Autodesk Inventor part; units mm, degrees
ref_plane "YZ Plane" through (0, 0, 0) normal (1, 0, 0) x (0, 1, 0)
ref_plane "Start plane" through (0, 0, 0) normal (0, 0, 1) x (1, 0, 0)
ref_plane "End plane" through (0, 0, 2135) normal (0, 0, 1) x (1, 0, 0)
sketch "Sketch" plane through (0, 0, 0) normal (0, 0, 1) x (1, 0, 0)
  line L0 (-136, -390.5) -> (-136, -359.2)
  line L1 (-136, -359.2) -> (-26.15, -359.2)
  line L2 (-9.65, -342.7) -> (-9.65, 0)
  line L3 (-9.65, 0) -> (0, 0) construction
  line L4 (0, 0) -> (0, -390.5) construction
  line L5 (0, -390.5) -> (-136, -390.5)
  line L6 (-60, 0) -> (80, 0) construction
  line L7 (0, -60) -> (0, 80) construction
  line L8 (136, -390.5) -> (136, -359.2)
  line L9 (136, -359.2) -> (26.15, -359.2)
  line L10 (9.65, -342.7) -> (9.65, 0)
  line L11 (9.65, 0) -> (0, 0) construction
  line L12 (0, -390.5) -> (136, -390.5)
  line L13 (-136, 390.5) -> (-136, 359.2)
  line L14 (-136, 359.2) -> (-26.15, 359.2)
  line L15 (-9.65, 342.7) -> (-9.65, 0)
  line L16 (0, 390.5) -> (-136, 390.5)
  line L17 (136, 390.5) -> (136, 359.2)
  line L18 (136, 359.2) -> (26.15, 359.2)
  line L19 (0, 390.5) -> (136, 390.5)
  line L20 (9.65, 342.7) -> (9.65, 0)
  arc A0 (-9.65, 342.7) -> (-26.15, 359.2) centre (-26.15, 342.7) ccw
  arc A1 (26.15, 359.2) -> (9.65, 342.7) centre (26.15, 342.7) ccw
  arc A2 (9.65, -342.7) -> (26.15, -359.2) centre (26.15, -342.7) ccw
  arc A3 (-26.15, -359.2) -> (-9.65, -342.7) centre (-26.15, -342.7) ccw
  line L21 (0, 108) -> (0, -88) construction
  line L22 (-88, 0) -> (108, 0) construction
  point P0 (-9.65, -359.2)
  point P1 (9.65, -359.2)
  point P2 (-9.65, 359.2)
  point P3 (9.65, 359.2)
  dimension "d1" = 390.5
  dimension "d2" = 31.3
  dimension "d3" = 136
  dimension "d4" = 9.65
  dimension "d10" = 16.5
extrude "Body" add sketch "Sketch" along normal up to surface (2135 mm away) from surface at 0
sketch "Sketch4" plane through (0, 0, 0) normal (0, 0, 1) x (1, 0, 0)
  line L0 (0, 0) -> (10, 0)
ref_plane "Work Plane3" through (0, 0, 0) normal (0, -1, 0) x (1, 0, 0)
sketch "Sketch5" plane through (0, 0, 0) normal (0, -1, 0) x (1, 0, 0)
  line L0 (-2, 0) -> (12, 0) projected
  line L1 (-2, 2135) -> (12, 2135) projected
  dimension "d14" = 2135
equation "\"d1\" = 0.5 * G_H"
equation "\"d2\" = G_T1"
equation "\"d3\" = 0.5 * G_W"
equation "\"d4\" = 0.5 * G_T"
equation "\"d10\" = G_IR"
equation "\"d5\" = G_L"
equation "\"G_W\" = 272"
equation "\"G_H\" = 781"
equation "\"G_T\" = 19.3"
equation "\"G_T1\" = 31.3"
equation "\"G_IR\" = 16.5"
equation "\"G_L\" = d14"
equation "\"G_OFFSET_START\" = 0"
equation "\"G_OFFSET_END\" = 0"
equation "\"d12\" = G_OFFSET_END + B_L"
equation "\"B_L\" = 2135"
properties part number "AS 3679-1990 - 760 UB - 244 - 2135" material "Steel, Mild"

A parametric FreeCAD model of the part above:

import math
import FreeCAD as App
import Part
import Sketcher

doc = App.newDocument("Part")
body = doc.addObject("PartDesign::Body", "Body")

sketch1 = body.newObject("Sketcher::SketchObject", "Sketch")
sketch1.AttachmentSupport = (doc.getObject("XY_Plane"), [""])
sketch1.MapMode = "FlatFace"
sketch1.addGeometry(Part.LineSegment(App.Vector(-136, -359, 0), App.Vector(-136, -390, 0)), False)
sketch1.addGeometry(Part.LineSegment(App.Vector(-136, -390, 0), App.Vector(136, -390, 0)), False)
sketch1.addGeometry(Part.LineSegment(App.Vector(136, -390, 0), App.Vector(136, -359, 0)), False)
sketch1.addGeometry(Part.LineSegment(App.Vector(136, -359, 0), App.Vector(26, -359, 0)), False)
sketch1.addGeometry(Part.ArcOfCircle(Part.Circle(App.Vector(26, -343, 0), App.Vector(0, 0, 1), 16), math.radians(180), math.radians(270)), False)
sketch1.addGeometry(Part.LineSegment(App.Vector(10, -343, 0), App.Vector(10, 343, 0)), False)
sketch1.addGeometry(Part.ArcOfCircle(Part.Circle(App.Vector(26, 343, 0), App.Vector(0, 0, 1), 16), math.radians(90), math.radians(180)), False)
sketch1.addGeometry(Part.LineSegment(App.Vector(26, 359, 0), App.Vector(136, 359, 0)), False)
sketch1.addGeometry(Part.LineSegment(App.Vector(136, 359, 0), App.Vector(136, 390, 0)), False)
sketch1.addGeometry(Part.LineSegment(App.Vector(136, 390, 0), App.Vector(-136, 390, 0)), False)
sketch1.addGeometry(Part.LineSegment(App.Vector(-136, 390, 0), App.Vector(-136, 359, 0)), False)
sketch1.addGeometry(Part.LineSegment(App.Vector(-136, 359, 0), App.Vector(-26, 359, 0)), False)
sketch1.addGeometry(Part.ArcOfCircle(Part.Circle(App.Vector(-26, 343, 0), App.Vector(0, 0, 1), 16), math.radians(0), math.radians(90)), False)
sketch1.addGeometry(Part.LineSegment(App.Vector(-10, 343, 0), App.Vector(-10, -343, 0)), False)
sketch1.addGeometry(Part.ArcOfCircle(Part.Circle(App.Vector(-26, -343, 0), App.Vector(0, 0, 1), 16), math.radians(-90), math.radians(0)), False)
sketch1.addGeometry(Part.LineSegment(App.Vector(-26, -359, 0), App.Vector(-136, -359, 0)), False)
sketch1.addConstraint(Sketcher.Constraint("Coincident", 0, 2, 1, 1))
sketch1.addConstraint(Sketcher.Constraint("Coincident", 1, 2, 2, 1))
sketch1.addConstraint(Sketcher.Constraint("Coincident", 2, 2, 3, 1))
sketch1.addConstraint(Sketcher.Constraint("Tangent", 3, 2, 4, 2))
sketch1.addConstraint(Sketcher.Constraint("Tangent", 4, 1, 5, 1))
sketch1.addConstraint(Sketcher.Constraint("Tangent", 5, 2, 6, 2))
sketch1.addConstraint(Sketcher.Constraint("Tangent", 6, 1, 7, 1))
sketch1.addConstraint(Sketcher.Constraint("Coincident", 7, 2, 8, 1))
sketch1.addConstraint(Sketcher.Constraint("Coincident", 8, 2, 9, 1))
sketch1.addConstraint(Sketcher.Constraint("Coincident", 9, 2, 10, 1))
sketch1.addConstraint(Sketcher.Constraint("Coincident", 10, 2, 11, 1))
sketch1.addConstraint(Sketcher.Constraint("Tangent", 11, 2, 12, 2))
sketch1.addConstraint(Sketcher.Constraint("Tangent", 12, 1, 13, 1))
sketch1.addConstraint(Sketcher.Constraint("Tangent", 13, 2, 14, 2))
sketch1.addConstraint(Sketcher.Constraint("Tangent", 14, 1, 15, 1))
sketch1.addConstraint(Sketcher.Constraint("Coincident", 15, 2, 0, 1))
sketch1.addConstraint(Sketcher.Constraint("Vertical", 0))
sketch1.addConstraint(Sketcher.Constraint("Horizontal", 1))
sketch1.addConstraint(Sketcher.Constraint("Vertical", 2))
sketch1.addConstraint(Sketcher.Constraint("Horizontal", 3))
sketch1.addConstraint(Sketcher.Constraint("Vertical", 5))
sketch1.addConstraint(Sketcher.Constraint("Horizontal", 7))
sketch1.addConstraint(Sketcher.Constraint("Vertical", 8))
sketch1.addConstraint(Sketcher.Constraint("Horizontal", 9))
sketch1.addConstraint(Sketcher.Constraint("Vertical", 10))
sketch1.addConstraint(Sketcher.Constraint("Horizontal", 11))
sketch1.addConstraint(Sketcher.Constraint("Vertical", 13))
sketch1.addConstraint(Sketcher.Constraint("Horizontal", 15))
sketch1.addConstraint(Sketcher.Constraint("Equal", 4, 6))
sketch1.addConstraint(Sketcher.Constraint("Equal", 6, 12))
sketch1.addConstraint(Sketcher.Constraint("Equal", 12, 14))
sketch1.addConstraint(Sketcher.Constraint("Symmetric", 4, 3, 12, 3, -1, 1))
sketch1.addConstraint(Sketcher.Constraint("Symmetric", 0, 2, 8, 2, -1, 1))
sketch1.addConstraint(Sketcher.Constraint("Symmetric", 7, 2, 10, 2, -2))
sketch1.addConstraint(Sketcher.Constraint("Symmetric", 2, 2, 15, 2, -2))
sketch1.addConstraint(Sketcher.Constraint("Radius", 4, 16.5))
sketch1.addConstraint(Sketcher.Constraint("DistanceY", 0, 2, 0, 1, 31.3))
sketch1.addConstraint(Sketcher.Constraint("DistanceX", 0, 2, -1, 1, 136.0))
sketch1.addConstraint(Sketcher.Constraint("DistanceY", 0, 2, -1, 1, 390.5))
sketch1.addConstraint(Sketcher.Constraint("DistanceX", -1, 1, 4, 1, 9.65))
pad1 = body.newObject("PartDesign::Pad", "Pad")
pad1.Profile = sketch1
pad1.Length = 2135

doc.recompute()
